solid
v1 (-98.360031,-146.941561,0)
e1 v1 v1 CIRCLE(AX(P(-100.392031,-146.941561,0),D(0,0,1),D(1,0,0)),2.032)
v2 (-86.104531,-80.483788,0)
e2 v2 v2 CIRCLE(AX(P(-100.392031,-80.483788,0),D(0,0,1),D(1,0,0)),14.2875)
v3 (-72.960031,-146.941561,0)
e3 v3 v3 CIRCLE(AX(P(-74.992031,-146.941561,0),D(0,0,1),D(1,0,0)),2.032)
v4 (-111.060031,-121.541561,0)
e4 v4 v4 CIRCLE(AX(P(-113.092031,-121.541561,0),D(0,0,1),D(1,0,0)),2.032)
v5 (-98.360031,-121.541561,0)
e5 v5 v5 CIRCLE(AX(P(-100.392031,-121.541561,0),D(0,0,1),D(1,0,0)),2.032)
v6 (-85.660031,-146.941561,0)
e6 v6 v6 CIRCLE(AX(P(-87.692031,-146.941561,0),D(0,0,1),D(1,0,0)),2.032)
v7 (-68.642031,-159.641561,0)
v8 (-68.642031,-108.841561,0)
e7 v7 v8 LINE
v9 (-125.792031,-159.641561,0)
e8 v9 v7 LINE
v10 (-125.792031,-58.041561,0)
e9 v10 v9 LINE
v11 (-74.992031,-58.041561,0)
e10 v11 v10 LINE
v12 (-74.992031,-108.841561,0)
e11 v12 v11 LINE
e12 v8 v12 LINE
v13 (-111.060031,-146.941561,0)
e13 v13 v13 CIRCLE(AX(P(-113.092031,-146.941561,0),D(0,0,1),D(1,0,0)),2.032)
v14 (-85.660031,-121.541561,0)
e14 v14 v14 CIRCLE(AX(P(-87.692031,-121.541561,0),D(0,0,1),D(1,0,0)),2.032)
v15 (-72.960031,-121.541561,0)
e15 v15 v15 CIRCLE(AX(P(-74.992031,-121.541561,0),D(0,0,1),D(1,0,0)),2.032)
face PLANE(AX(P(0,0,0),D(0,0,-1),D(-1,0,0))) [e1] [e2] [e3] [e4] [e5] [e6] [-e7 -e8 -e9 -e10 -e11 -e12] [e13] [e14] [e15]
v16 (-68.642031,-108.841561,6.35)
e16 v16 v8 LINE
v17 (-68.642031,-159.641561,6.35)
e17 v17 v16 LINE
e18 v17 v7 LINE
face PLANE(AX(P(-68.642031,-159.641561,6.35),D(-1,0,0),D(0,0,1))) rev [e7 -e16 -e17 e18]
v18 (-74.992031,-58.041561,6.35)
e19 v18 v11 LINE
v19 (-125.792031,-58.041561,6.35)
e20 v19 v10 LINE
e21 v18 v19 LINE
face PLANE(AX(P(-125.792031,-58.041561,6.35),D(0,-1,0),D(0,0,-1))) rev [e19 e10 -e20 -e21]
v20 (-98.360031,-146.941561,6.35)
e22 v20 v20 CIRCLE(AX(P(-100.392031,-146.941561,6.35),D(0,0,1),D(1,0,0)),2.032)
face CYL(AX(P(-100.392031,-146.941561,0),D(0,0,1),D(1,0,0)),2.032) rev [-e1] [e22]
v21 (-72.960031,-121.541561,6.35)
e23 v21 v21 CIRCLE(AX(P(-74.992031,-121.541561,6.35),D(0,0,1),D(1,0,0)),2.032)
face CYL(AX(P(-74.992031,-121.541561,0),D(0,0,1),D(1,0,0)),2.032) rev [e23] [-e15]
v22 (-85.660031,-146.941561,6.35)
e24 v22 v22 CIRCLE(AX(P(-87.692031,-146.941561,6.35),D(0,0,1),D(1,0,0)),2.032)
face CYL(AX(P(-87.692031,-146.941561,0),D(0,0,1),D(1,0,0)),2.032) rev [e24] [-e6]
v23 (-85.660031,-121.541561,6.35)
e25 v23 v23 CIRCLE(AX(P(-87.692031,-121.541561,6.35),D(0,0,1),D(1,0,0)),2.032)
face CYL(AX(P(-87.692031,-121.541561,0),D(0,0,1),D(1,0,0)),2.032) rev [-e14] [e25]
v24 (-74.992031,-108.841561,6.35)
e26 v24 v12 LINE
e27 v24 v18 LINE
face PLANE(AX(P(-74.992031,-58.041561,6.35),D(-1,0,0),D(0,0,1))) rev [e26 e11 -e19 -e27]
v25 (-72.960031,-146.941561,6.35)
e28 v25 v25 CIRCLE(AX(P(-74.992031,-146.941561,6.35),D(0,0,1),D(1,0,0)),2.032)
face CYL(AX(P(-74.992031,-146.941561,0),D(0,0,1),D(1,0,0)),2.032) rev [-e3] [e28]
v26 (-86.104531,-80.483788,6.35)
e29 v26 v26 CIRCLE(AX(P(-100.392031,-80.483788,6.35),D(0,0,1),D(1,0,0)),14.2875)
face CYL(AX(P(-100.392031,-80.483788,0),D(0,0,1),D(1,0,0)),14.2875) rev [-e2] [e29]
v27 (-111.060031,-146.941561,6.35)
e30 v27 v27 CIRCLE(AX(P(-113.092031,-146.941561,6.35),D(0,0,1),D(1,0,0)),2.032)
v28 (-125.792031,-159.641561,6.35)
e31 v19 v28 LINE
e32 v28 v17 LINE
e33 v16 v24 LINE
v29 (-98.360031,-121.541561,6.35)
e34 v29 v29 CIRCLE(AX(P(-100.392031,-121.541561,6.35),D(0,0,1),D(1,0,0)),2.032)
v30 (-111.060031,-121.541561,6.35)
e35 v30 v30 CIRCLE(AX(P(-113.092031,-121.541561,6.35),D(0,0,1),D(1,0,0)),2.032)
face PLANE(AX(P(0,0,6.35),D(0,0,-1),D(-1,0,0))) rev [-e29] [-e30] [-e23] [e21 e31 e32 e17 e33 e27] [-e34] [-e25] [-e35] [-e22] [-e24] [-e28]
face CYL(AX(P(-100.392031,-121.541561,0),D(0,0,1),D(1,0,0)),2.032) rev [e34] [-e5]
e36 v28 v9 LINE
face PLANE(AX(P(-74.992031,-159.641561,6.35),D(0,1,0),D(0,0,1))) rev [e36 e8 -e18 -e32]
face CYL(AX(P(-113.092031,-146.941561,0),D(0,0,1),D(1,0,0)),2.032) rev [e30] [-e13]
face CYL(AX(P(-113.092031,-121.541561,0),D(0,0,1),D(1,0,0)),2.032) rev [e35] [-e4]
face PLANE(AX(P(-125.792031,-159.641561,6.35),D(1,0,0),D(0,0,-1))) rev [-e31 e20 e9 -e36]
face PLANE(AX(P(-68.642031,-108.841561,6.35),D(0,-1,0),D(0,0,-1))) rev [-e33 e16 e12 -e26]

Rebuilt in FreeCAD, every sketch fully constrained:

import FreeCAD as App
import Part
import Sketcher

V = App.Vector
Q = App.Units.Quantity


def add_polygon(sketch, points):
    """Adds a closed chain of lines whose ends are joined by coincident constraints."""
    first, n = sketch.GeometryCount, len(points)
    for a, b in zip(points, points[1:] + points[:1]):
        sketch.addGeometry(Part.LineSegment(App.Vector(*a, 0), App.Vector(*b, 0)), False)
    for i in range(n):
        sketch.addConstraint(Sketcher.Constraint("Coincident", first + i, 2, first + (i + 1) % n, 1))

doc = App.newDocument("Part")
body = doc.addObject("PartDesign::Body", "Body")

# Sketch on XY plane
sketch1 = doc.addObject("Sketcher::SketchObject", "Sketch")
body.addObject(sketch1)
sketch1.AttachmentSupport = (doc.XY_Plane, [""])
sketch1.MapMode = "FlatFace"
add_polygon(sketch1, [(-126, -160), (-69, -160), (-69, -109), (-75, -109), (-75, -58), (-126, -58)])  # lines 0-5
sketch1.addConstraint(Sketcher.Constraint("Horizontal", 0))
sketch1.addConstraint(Sketcher.Constraint("Vertical", 1))
sketch1.addConstraint(Sketcher.Constraint("Horizontal", 2))
sketch1.addConstraint(Sketcher.Constraint("Vertical", 3))
sketch1.addConstraint(Sketcher.Constraint("Horizontal", 4))
sketch1.addConstraint(Sketcher.Constraint("Vertical", 5))
sketch1.addConstraint(Sketcher.Constraint("Equal", 4, 1))
sketch1.addConstraint(Sketcher.Constraint("Equal", 1, 3))
sketch1.addConstraint(Sketcher.Constraint("DistanceX", 4, 2, 4, 1, Q("2 in")))
sketch1.addConstraint(Sketcher.Constraint("DistanceX", 0, 1, 0, 2, Q("2.25 in")))
sketch1.addConstraint(Sketcher.Constraint("DistanceX", 0, 2, -1, 1, Q("68.642031 mm")))
sketch1.addConstraint(Sketcher.Constraint("DistanceY", 0, 2, -1, 1, Q("159.641561 mm")))
pad1 = doc.addObject("PartDesign::Pad", "Pad")
body.addObject(pad1)
pad1.Profile = sketch1
pad1.Length = Q("0.25 in")

# Sketch on XY plane
sketch2 = doc.addObject("Sketcher::SketchObject", "Sketch001")
body.addObject(sketch2)
sketch2.AttachmentSupport = (doc.XY_Plane, [""])
sketch2.MapMode = "FlatFace"
sketch2.AttachmentOffset = App.Placement(V(0, 0, 0.25 * 25.4), App.Rotation())
sketch2.addGeometry(Part.Circle(V(-100.4, -80.5, 0), V(0, 0, 1), 14.3), False)
sketch2.addGeometry(Part.Circle(V(-87.7, -146.9, 0), V(0, 0, 1), 2), False)
sketch2.addGeometry(Part.Circle(V(-113.1, -146.9, 0), V(0, 0, 1), 2), False)
sketch2.addGeometry(Part.Circle(V(-100.4, -146.9, 0), V(0, 0, 1), 2), False)
sketch2.addGeometry(Part.Circle(V(-75, -146.9, 0), V(0, 0, 1), 2), False)
sketch2.addGeometry(Part.Circle(V(-113.1, -121.5, 0), V(0, 0, 1), 2), False)
sketch2.addGeometry(Part.Circle(V(-87.7, -121.5, 0), V(0, 0, 1), 2), False)
sketch2.addGeometry(Part.Circle(V(-75, -121.5, 0), V(0, 0, 1), 2), False)
sketch2.addGeometry(Part.Circle(V(-100.4, -121.5, 0), V(0, 0, 1), 2), False)
sketch2.addConstraint(Sketcher.Constraint("Equal", 1, 2))
sketch2.addConstraint(Sketcher.Constraint("Equal", 2, 3))
sketch2.addConstraint(Sketcher.Constraint("Equal", 3, 4))
sketch2.addConstraint(Sketcher.Constraint("Equal", 4, 5))
sketch2.addConstraint(Sketcher.Constraint("Equal", 5, 6))
sketch2.addConstraint(Sketcher.Constraint("Equal", 6, 7))
sketch2.addConstraint(Sketcher.Constraint("Equal", 7, 8))
sketch2.addConstraint(Sketcher.Constraint("Horizontal", 1, 3, 2, 3))
sketch2.addConstraint(Sketcher.Constraint("Horizontal", 2, 3, 3, 3))
sketch2.addConstraint(Sketcher.Constraint("Horizontal", 3, 3, 4, 3))
sketch2.addConstraint(Sketcher.Constraint("Horizontal", 5, 3, 6, 3))
sketch2.addConstraint(Sketcher.Constraint("Horizontal", 6, 3, 7, 3))
sketch2.addConstraint(Sketcher.Constraint("Horizontal", 7, 3, 8, 3))
sketch2.addConstraint(Sketcher.Constraint("Vertical", 0, 3, 3, 3))
sketch2.addConstraint(Sketcher.Constraint("Vertical", 2, 3, 5, 3))
sketch2.addConstraint(Sketcher.Constraint("Vertical", 1, 3, 6, 3))
sketch2.addConstraint(Sketcher.Constraint("Vertical", 4, 3, 7, 3))
sketch2.addConstraint(Sketcher.Constraint("Vertical", 3, 3, 8, 3))
sketch2.addConstraint(Sketcher.Constraint("Diameter", 1, Q("0.16 in")))
sketch2.addConstraint(Sketcher.Constraint("Diameter", 0, Q("1.125 in")))
sketch2.addConstraint(Sketcher.Constraint("DistanceX", 2, 3, 1, 3, Q("1 in")))
sketch2.addConstraint(Sketcher.Constraint("DistanceX", 3, 3, 4, 3, Q("1 in")))
sketch2.addConstraint(Sketcher.Constraint("DistanceY", 2, 3, 5, 3, Q("1 in")))
sketch2.addConstraint(Sketcher.Constraint("DistanceX", 0, 3, 1, 3, Q("0.5 in")))
sketch2.addConstraint(Sketcher.Constraint("DistanceX", 0, 3, -1, 1, Q("100.392031 mm")))
sketch2.addConstraint(Sketcher.Constraint("DistanceY", 0, 3, -1, 1, Q("80.483788 mm")))
sketch2.addConstraint(Sketcher.Constraint("DistanceY", 1, 3, -1, 1, Q("146.941561 mm")))
pocket1 = doc.addObject("PartDesign::Pocket", "Pocket")
body.addObject(pocket1)
pocket1.Profile = sketch2
pocket1.Length = Q("0.25 in")

doc.recompute()
